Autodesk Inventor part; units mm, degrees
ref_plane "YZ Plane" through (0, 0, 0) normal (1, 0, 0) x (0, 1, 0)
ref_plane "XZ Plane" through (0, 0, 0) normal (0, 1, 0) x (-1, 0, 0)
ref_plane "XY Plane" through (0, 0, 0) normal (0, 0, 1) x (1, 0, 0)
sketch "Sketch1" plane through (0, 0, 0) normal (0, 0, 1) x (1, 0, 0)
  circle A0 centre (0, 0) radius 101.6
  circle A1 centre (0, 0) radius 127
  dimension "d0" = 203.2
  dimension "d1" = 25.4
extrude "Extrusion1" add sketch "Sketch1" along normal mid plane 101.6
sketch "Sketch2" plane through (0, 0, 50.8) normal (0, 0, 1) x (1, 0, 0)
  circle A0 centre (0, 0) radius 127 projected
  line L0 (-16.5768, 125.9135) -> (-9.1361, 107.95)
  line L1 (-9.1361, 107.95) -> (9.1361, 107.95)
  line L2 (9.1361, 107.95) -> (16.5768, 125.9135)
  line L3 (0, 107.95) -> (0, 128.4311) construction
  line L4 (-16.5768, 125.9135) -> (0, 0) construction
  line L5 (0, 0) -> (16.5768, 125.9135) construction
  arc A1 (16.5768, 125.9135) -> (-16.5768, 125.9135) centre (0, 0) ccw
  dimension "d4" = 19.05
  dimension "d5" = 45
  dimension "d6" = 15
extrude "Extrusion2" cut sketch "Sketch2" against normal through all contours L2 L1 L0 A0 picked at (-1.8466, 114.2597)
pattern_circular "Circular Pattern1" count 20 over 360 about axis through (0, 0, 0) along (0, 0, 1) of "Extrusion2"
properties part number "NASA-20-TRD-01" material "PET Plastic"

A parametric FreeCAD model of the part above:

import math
import FreeCAD as App
import Part
import Sketcher

V = App.Vector
Q = App.Units.Quantity

doc = App.newDocument("Part")
params = doc.addObject("Spreadsheet::Sheet", "Params")
for row, (alias, value) in enumerate([
    ("sketch1_diameter", "8 in"),
    ("sketch1_diameter2", "10 in"),
    ("pad1_length", "4 in"),
    ("sketch2_radius", "5 in"),
], start=1):
    params.set(f"A{row}", alias)
    params.set(f"B{row}", "=" + value)
    params.setAlias(f"B{row}", alias)

body = doc.addObject("PartDesign::Body", "Body")

sketch1 = body.newObject("Sketcher::SketchObject", "Sketch")
sketch1.AttachmentSupport = (doc.getObject("XY_Plane"), [""])
sketch1.MapMode = "FlatFace"
sketch1.addGeometry([
    Part.Circle(V(0, 0, 0), V(0, 0, 1), 127),
    Part.Circle(V(0, 0, 0), V(0, 0, 1), 101.6),
], False)
sketch1.addConstraint([
    Sketcher.Constraint("Coincident", 0, 3, -1, 1),
    Sketcher.Constraint("Coincident", 1, 3, -1, 1),
    Sketcher.Constraint("Diameter", 1, Q("8 in")),
    Sketcher.Constraint("Diameter", 0, Q("10 in")),
])
sketch1.setExpression("Constraints[2]", "Params.sketch1_diameter")
sketch1.setExpression("Constraints[3]", "Params.sketch1_diameter2")
pad1 = body.newObject("PartDesign::Pad", "Pad")
pad1.Profile = sketch1
pad1.setExpression("Length", "Params.pad1_length")
pad1.Midplane = True

sketch2 = body.newObject("Sketcher::SketchObject", "Sketch001")
sketch2.AttachmentSupport = (doc.getObject("XY_Plane"), [""])
sketch2.MapMode = "FlatFace"
sketch2.AttachmentOffset = App.Placement(V(0, 0, 2 * 25.4), App.Rotation())
sketch2.addGeometry([
    Part.LineSegment(V(9.1361, 107.95, 0), V(16.5768, 125.9135, 0)),
    Part.ArcOfCircle(Part.Circle(V(0, 0, 0), V(0, 0, 1), 127), math.radians(82.500012), math.radians(97.499988)),
    Part.LineSegment(V(-16.5768, 125.9135, 0), V(-9.1361, 107.95, 0)),
    Part.LineSegment(V(-9.1361, 107.95, 0), V(9.1361, 107.95, 0)),
], False)
sketch2.addConstraint([
    Sketcher.Constraint("Coincident", 0, 2, 1, 1),
    Sketcher.Constraint("Coincident", 1, 2, 2, 1),
    Sketcher.Constraint("Coincident", 2, 2, 3, 1),
    Sketcher.Constraint("Coincident", 3, 2, 0, 1),
    Sketcher.Constraint("Horizontal", 3),
    Sketcher.Constraint("Coincident", 1, 3, -1, 1),
    Sketcher.Constraint("Horizontal", 0, 2, 1, 2),
    Sketcher.Constraint("Equal", 0, 2),
    Sketcher.Constraint("Radius", 1, Q("5 in")),
    Sketcher.Constraint("Angle", 0, Q("67.5 deg")),
    Sketcher.Constraint("DistanceY", -1, 1, 2, 2, Q("4.25 in")),
    Sketcher.Constraint("Distance", 0, Q("0.7655 in")),
])
sketch2.setExpression("Constraints[8]", "Params.sketch2_radius")
pocket1 = body.newObject("PartDesign::Pocket", "Pocket")
pocket1.Profile = sketch2
pocket1.Type = "ThroughAll"
doc.recompute()

polarpattern = body.newObject("PartDesign::PolarPattern", "PolarPattern")
polarpattern.Originals = [pocket1]
polarpattern.Axis = (doc.getObject("Z_Axis"), [""])
polarpattern.Angle = 360
polarpattern.Occurrences = 20
body.Tip = polarpattern

doc.recompute()
